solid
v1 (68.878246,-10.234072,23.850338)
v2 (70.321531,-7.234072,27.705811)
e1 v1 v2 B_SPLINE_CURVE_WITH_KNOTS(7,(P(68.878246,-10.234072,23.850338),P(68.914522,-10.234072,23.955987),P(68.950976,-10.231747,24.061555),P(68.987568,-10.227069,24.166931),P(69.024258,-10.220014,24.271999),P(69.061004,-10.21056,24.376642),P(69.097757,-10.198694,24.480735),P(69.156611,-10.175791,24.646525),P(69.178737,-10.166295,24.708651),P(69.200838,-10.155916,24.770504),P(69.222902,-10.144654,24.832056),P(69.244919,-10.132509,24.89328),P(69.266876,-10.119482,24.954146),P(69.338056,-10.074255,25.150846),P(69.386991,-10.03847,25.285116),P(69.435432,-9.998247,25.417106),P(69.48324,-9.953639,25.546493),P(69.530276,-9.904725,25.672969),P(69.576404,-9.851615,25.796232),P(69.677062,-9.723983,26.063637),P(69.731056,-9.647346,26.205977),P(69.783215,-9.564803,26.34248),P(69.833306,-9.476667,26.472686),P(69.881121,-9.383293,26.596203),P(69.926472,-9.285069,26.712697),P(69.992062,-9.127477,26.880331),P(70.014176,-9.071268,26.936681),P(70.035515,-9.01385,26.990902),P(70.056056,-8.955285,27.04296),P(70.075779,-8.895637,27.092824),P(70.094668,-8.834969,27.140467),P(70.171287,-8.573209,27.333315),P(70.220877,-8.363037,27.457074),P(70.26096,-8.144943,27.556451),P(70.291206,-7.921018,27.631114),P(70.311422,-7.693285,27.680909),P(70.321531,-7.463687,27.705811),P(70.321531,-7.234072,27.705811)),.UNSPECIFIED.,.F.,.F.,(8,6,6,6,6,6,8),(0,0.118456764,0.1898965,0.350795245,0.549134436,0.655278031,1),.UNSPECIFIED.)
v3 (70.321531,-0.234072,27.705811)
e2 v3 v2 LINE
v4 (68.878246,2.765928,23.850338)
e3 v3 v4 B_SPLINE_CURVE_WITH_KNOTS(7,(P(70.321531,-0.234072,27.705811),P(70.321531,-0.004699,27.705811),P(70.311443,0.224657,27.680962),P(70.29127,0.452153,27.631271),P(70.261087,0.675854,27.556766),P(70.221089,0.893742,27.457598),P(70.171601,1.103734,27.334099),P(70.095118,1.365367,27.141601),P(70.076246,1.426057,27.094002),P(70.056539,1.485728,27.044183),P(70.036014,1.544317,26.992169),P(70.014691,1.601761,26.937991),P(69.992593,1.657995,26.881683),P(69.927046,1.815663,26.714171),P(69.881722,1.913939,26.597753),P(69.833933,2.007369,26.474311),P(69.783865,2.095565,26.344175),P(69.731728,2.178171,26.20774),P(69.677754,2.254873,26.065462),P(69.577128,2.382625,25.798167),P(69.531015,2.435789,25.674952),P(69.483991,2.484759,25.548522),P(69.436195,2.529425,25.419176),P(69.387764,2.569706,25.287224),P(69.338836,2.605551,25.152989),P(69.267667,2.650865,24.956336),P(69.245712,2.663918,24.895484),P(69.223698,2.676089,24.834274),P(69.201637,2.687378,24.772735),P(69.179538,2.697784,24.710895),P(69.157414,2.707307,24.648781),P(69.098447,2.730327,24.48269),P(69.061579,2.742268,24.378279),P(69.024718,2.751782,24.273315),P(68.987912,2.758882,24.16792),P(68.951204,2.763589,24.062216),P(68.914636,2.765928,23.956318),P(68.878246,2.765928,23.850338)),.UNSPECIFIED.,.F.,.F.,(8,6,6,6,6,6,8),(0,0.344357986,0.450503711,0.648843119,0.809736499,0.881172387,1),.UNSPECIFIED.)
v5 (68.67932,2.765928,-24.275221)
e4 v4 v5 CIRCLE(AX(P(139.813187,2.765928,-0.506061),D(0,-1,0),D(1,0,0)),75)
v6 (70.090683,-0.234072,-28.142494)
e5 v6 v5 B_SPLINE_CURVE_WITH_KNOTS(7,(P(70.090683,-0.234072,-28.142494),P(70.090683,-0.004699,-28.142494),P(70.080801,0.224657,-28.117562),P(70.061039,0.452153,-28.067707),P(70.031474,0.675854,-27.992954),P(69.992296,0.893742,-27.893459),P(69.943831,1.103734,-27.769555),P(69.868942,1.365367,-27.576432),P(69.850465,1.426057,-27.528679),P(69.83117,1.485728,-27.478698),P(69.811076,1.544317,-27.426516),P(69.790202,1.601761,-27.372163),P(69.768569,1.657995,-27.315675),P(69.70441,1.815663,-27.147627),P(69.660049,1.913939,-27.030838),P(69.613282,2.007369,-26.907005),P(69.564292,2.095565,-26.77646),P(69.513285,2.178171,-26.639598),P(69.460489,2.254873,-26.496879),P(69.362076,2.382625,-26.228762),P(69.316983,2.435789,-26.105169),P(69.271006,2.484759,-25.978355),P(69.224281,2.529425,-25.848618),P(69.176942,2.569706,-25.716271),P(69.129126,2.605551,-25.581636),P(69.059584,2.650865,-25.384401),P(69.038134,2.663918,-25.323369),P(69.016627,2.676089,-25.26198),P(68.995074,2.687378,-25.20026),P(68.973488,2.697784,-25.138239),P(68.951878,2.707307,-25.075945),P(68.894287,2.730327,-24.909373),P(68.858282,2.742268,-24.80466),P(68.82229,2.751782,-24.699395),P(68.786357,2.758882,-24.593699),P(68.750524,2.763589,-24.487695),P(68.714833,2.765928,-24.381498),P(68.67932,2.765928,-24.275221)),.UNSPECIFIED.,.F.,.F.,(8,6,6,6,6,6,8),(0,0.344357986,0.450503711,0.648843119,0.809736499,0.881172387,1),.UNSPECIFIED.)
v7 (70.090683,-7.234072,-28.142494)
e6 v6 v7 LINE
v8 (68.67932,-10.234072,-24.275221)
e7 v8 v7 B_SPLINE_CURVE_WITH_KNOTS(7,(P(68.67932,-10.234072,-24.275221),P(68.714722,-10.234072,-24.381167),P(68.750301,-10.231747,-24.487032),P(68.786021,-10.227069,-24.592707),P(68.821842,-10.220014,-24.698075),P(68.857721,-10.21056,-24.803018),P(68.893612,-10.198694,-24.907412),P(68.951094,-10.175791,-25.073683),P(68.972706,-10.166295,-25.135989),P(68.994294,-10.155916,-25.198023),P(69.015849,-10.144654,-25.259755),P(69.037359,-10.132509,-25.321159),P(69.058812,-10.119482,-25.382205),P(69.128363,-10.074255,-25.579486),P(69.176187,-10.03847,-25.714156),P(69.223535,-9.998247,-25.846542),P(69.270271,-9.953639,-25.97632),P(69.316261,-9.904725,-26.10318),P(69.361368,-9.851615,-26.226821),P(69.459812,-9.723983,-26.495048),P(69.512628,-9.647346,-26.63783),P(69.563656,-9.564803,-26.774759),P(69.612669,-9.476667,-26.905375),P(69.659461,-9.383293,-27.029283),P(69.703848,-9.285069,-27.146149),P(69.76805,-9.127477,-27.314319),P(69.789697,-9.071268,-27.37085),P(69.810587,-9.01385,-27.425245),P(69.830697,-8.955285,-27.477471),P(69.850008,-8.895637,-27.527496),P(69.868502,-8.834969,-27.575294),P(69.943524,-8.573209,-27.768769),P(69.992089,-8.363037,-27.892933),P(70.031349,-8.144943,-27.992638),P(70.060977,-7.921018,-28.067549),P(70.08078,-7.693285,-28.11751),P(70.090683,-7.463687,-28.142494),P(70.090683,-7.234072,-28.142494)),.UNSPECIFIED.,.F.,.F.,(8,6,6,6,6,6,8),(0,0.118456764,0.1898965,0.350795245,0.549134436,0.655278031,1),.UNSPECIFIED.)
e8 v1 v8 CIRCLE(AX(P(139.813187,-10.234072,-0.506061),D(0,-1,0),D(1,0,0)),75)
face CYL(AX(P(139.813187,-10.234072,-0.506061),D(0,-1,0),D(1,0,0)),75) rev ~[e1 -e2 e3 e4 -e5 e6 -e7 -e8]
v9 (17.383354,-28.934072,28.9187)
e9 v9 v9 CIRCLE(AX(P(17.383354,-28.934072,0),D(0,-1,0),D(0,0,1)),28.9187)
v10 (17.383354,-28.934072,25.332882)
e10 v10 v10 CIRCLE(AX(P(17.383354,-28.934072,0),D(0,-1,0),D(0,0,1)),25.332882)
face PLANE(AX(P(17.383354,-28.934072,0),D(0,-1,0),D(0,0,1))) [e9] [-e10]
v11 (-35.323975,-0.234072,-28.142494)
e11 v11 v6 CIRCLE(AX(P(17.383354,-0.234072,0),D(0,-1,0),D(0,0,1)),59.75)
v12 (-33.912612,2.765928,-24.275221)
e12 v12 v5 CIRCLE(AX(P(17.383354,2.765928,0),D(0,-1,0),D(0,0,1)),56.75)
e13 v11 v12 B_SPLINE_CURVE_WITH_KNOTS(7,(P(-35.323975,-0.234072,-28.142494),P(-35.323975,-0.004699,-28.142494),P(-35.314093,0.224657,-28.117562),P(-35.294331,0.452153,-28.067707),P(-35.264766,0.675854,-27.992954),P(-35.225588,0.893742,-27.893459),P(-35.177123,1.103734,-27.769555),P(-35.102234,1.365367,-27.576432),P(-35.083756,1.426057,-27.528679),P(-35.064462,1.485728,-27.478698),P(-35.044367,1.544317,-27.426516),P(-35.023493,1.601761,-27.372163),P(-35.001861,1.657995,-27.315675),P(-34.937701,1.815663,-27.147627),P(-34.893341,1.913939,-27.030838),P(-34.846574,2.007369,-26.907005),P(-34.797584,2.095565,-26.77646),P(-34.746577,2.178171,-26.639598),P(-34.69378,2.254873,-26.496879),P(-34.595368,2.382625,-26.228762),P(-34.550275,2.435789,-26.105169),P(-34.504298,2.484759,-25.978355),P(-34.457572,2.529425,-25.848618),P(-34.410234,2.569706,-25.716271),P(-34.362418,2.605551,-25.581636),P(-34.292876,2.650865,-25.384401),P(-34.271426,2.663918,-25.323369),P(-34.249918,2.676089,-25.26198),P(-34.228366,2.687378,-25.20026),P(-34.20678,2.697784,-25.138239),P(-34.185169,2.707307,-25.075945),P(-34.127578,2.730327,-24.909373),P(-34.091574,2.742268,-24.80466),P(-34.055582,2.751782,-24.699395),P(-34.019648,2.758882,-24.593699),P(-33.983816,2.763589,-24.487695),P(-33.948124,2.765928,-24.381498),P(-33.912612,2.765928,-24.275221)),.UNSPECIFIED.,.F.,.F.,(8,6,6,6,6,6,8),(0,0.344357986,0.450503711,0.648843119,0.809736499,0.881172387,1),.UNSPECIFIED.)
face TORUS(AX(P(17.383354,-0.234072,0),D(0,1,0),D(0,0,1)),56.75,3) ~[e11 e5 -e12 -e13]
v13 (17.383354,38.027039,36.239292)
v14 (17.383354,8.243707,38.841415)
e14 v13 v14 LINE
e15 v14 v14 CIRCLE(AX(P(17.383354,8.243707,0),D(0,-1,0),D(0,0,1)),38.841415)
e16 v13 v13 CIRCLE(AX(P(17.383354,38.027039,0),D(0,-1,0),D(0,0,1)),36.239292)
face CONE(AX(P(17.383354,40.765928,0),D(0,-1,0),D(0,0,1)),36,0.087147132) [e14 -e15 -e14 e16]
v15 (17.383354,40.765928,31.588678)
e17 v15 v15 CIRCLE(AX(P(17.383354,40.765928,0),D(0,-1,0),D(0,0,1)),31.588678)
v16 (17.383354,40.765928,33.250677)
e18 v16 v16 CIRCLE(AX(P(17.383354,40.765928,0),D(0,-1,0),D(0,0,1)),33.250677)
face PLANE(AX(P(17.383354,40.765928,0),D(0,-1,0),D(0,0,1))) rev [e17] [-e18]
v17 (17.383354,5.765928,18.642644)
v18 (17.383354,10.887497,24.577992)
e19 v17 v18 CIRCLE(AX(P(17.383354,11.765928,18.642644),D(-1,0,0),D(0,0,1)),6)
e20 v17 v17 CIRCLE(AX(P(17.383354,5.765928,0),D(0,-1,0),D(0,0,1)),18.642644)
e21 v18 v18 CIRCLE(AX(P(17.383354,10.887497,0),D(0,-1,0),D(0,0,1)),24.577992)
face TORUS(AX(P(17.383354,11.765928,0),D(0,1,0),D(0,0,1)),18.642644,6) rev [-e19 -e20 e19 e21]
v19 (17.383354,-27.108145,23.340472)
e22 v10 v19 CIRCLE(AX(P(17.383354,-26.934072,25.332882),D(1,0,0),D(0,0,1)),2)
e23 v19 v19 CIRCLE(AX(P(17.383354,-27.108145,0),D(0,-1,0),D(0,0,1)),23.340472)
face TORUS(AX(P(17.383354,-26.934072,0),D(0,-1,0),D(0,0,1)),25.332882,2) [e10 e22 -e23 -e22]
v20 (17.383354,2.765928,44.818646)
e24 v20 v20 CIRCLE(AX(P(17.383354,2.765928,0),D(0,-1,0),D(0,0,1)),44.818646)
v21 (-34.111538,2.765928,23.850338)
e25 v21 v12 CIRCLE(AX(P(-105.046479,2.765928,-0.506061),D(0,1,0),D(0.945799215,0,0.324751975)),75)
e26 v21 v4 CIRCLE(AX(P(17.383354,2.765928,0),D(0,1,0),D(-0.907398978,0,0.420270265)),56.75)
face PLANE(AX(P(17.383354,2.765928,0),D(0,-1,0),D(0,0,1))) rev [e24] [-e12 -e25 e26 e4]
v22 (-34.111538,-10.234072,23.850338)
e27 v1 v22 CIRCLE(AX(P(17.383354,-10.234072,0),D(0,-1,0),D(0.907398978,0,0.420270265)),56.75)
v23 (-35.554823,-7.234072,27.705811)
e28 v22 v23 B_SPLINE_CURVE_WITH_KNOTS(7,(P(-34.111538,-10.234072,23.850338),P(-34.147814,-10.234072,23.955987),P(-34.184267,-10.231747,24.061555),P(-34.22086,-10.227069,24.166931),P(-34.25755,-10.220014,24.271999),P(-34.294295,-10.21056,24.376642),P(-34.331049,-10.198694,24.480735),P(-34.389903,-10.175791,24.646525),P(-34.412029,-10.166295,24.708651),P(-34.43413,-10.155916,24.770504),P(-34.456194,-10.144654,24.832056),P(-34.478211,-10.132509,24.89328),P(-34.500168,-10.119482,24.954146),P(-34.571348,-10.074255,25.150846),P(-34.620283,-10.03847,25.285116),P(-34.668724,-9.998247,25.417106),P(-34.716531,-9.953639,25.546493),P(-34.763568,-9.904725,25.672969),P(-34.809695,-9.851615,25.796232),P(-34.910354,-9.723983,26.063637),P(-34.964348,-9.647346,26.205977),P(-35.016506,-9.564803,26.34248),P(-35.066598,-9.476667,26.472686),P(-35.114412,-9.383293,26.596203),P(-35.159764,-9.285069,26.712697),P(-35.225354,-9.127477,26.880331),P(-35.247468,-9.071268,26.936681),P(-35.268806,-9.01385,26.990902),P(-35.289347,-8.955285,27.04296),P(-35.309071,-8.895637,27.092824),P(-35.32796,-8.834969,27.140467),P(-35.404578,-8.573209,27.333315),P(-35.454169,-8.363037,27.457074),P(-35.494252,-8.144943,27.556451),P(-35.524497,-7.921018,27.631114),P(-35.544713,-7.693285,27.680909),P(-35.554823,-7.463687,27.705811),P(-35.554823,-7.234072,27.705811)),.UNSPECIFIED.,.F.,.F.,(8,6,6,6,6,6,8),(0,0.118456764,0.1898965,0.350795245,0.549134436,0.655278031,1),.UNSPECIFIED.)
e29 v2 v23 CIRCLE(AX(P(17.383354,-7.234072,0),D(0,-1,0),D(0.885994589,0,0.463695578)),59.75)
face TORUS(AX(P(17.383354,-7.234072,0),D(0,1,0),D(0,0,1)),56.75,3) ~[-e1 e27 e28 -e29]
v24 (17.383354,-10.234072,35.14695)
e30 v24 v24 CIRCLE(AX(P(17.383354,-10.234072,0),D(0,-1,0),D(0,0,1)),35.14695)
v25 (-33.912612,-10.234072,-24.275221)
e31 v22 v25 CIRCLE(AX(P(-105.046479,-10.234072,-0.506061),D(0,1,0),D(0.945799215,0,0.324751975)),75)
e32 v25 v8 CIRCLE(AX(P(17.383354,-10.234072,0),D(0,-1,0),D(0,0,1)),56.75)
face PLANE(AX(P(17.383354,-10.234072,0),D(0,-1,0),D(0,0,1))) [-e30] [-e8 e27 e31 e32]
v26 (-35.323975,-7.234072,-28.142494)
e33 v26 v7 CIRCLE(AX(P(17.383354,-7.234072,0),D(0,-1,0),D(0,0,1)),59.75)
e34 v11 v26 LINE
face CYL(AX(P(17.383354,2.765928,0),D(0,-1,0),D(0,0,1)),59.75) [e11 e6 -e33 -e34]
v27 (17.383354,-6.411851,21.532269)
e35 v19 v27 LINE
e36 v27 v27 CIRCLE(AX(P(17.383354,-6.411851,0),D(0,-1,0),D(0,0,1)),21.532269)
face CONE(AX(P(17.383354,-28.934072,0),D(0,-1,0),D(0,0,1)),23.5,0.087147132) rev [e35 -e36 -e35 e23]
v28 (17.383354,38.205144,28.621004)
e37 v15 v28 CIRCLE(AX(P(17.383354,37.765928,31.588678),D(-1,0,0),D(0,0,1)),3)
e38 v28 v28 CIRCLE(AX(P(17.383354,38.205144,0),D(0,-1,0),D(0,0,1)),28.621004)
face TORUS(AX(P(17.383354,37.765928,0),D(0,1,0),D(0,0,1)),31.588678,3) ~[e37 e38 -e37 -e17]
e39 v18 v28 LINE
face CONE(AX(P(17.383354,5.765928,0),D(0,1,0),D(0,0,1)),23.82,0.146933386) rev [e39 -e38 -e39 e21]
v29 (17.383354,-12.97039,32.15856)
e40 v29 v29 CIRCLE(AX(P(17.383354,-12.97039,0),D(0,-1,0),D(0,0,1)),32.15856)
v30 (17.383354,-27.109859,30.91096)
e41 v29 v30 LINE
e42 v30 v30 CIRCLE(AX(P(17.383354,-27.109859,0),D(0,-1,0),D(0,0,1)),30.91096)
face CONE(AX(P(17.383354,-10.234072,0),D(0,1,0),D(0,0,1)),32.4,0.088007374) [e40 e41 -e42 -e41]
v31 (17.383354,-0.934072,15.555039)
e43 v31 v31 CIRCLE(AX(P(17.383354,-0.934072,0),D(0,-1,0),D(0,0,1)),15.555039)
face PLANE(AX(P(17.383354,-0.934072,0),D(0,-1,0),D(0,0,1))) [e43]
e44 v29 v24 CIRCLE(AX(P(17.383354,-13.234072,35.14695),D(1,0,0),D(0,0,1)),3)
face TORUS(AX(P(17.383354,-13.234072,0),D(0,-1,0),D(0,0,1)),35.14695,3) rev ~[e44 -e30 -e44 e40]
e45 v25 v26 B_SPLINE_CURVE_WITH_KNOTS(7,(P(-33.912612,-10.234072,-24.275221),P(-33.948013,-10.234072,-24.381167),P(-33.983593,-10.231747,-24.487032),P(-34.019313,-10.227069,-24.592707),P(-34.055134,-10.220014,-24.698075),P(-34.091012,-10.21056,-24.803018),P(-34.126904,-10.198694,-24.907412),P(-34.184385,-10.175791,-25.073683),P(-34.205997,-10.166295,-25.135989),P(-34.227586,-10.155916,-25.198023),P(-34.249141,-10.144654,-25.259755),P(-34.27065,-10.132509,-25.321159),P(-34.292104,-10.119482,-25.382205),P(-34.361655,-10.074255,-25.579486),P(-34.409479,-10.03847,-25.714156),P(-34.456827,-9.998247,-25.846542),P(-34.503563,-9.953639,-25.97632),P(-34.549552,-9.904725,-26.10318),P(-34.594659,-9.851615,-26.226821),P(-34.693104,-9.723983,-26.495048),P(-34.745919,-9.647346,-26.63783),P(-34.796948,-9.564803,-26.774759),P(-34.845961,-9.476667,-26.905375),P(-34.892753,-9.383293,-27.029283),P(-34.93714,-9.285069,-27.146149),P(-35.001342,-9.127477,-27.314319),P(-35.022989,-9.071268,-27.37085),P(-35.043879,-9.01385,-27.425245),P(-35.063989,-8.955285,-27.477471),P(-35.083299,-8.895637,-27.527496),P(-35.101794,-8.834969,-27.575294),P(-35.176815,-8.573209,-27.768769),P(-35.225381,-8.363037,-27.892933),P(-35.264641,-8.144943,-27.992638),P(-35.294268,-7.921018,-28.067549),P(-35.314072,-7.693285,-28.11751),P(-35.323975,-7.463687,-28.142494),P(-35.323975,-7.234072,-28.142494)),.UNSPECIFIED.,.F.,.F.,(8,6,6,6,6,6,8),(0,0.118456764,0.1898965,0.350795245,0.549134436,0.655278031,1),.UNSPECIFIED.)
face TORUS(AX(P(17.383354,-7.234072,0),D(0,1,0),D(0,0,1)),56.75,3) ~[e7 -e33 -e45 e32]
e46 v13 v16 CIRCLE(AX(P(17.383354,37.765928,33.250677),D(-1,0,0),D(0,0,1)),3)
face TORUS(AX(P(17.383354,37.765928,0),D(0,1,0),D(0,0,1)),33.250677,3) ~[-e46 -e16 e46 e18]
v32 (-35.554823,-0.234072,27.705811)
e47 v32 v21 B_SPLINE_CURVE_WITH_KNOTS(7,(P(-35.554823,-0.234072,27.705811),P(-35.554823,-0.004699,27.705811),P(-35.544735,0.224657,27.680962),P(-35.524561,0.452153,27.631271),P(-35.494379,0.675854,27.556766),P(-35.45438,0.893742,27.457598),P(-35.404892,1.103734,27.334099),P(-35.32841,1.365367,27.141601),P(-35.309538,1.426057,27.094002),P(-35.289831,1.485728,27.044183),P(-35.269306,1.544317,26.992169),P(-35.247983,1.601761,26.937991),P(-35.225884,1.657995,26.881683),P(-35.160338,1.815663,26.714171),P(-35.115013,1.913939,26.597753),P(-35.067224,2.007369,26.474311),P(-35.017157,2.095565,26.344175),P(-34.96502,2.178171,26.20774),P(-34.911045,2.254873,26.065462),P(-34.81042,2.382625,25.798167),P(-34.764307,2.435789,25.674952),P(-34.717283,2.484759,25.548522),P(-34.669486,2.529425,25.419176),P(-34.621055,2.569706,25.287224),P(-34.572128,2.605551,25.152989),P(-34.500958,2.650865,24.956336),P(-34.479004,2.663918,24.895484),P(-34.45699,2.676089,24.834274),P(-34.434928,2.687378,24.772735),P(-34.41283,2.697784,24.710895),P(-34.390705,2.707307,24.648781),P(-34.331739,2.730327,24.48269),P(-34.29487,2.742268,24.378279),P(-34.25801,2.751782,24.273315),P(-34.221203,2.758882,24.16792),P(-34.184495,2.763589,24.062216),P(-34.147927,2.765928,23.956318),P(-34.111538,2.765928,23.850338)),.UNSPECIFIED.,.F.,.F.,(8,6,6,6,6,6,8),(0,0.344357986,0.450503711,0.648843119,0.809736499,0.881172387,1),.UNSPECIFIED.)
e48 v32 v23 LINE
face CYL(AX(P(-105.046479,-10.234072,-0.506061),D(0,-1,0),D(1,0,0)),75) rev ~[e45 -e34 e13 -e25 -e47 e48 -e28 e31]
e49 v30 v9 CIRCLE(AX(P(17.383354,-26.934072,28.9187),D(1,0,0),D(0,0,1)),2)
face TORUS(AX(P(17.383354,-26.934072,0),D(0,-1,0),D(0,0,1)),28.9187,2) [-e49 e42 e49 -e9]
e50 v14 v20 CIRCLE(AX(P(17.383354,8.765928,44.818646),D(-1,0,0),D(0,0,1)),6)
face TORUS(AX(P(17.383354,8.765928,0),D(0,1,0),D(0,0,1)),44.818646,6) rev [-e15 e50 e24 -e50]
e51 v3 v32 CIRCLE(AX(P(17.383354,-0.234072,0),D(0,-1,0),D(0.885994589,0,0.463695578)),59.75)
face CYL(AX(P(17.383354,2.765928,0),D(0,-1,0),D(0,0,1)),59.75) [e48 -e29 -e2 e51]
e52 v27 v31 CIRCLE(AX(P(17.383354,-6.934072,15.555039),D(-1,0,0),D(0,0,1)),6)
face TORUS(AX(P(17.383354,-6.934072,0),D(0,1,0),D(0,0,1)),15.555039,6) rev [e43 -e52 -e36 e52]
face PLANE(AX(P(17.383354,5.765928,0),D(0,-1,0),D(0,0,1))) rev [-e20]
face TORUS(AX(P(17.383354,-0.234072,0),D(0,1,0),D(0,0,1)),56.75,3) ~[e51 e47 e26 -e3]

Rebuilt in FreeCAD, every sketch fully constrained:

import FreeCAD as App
import Part
import Sketcher

V = App.Vector


def edges_at(feature, points):
    """Names of the edges that pass closest to the given points."""
    edges = feature.Shape.Edges
    near = lambda p: min(range(len(edges)), key=lambda i: edges[i].distToShape(Part.Vertex(*p))[0])
    return sorted({f"Edge{near(p) + 1}" for p in points})

doc = App.newDocument("Part")
body = doc.addObject("PartDesign::Body", "Body")

# Sketch on XY plane
sketch1 = body.newObject("Sketcher::SketchObject", "Sketch")
sketch1.AttachmentSupport = (doc.getObject("XY_Plane"), [""])
sketch1.MapMode = "FlatFace"
sketch1.addGeometry([
    Part.LineSegment(V(53, 41, 0), V(46, 41, 0)),  # 0
    Part.LineSegment(V(46, 41, 0), V(41, 6, 0)),  # 1
    Part.LineSegment(V(41, 6, 0), V(17, 6, 0)),  # 2
    Part.LineSegment(V(17, 6, 0), V(17, -1, 0)),  # 3
    Part.LineSegment(V(17, -1, 0), V(38, -1, 0)),  # 4
    Part.LineSegment(V(38, -1, 0), V(41, -29, 0)),  # 5
    Part.LineSegment(V(41, -29, 0), V(48, -29, 0)),  # 6
    Part.LineSegment(V(48, -29, 0), V(50, -10, 0)),  # 7
    Part.LineSegment(V(50, -10, 0), V(77, -10, 0)),  # 8
    Part.LineSegment(V(77, -10, 0), V(77, 3, 0)),  # 9
    Part.LineSegment(V(77, 3, 0), V(57, 3, 0)),  # 10
    Part.LineSegment(V(57, 3, 0), V(53, 41, 0)),  # 11
], False)
sketch1.addGeometry(Part.LineSegment(V(17, 41, 0), V(17, -29, 0)), True)  # axis
sketch1.addConstraint([
    Sketcher.Constraint("Coincident", 0, 2, 1, 1),
    Sketcher.Constraint("Coincident", 1, 2, 2, 1),
    Sketcher.Constraint("Coincident", 2, 2, 3, 1),
    Sketcher.Constraint("Coincident", 3, 2, 4, 1),
    Sketcher.Constraint("Coincident", 4, 2, 5, 1),
    Sketcher.Constraint("Coincident", 5, 2, 6, 1),
    Sketcher.Constraint("Coincident", 6, 2, 7, 1),
    Sketcher.Constraint("Coincident", 7, 2, 8, 1),
    Sketcher.Constraint("Coincident", 8, 2, 9, 1),
    Sketcher.Constraint("Coincident", 9, 2, 10, 1),
    Sketcher.Constraint("Coincident", 10, 2, 11, 1),
    Sketcher.Constraint("Coincident", 11, 2, 0, 1),
    Sketcher.Constraint("Horizontal", 0),
    Sketcher.Constraint("Horizontal", 2),
    Sketcher.Constraint("Vertical", 3),
    Sketcher.Constraint("Horizontal", 4),
    Sketcher.Constraint("Horizontal", 6),
    Sketcher.Constraint("Horizontal", 8),
    Sketcher.Constraint("Vertical", 9),
    Sketcher.Constraint("Horizontal", 10),
    Sketcher.Constraint("Vertical", 12),
    Sketcher.Constraint("Parallel", 5, 11),
    Sketcher.Constraint("Horizontal", 11, 2, 12, 1),
    Sketcher.Constraint("Horizontal", 6, 2, 12, 2),
    Sketcher.Constraint("Vertical", 3, 2, 12, 1),
    Sketcher.Constraint("DistanceX", 0, 2, 0, 1, 7.0),
    Sketcher.Constraint("DistanceY", 9, 1, 9, 2, 13.0),
    Sketcher.Constraint("DistanceY", 3, 2, 3, 1, 6.7),
    Sketcher.Constraint("DistanceY", 12, 2, 12, 1, 69.7),
    Sketcher.Constraint("DistanceY", 1, 2, 0, 2, 35.0),
    Sketcher.Constraint("DistanceX", 2, 2, 0, 2, 29.0),
    Sketcher.Constraint("DistanceY", 7, 2, 1, 2, 16.0),
    Sketcher.Constraint("DistanceX", 6, 2, 8, 2, 29.0),
    Sketcher.Constraint("DistanceX", 2, 2, 2, 1, 23.82),
    Sketcher.Constraint("DistanceX", 6, 1, 6, 2, 7.25),
    Sketcher.Constraint("DistanceX", 8, 1, 8, 2, 27.35),
    Sketcher.Constraint("DistanceX", 10, 2, 10, 1, 20.43),
    Sketcher.Constraint("DistanceX", 3, 2, 5, 2, 23.5),
    Sketcher.Constraint("DistanceY", -1, 1, 0, 2, 40.765928),
    Sketcher.Constraint("DistanceX", -1, 1, 4, 2, 38.437038),
])
revolution = body.newObject("PartDesign::Revolution", "Revolution")
revolution.Profile = sketch1
revolution.ReferenceAxis = (sketch1, ["Axis0"])
revolution.Angle = 360
doc.recompute()

fillet = body.newObject("PartDesign::Fillet", "Fillet")
fillet.Base = (revolution, edges_at(revolution, [(17.383, 5.766, -23.82)]))
fillet.Radius = 6
doc.recompute()

fillet2 = body.newObject("PartDesign::Fillet", "Fillet001")
fillet2.Base = (fillet, edges_at(fillet, [(17.383, -0.934, -21.054)]))
fillet2.Radius = 6
doc.recompute()

fillet3 = body.newObject("PartDesign::Fillet", "Fillet002")
fillet3.Base = (fillet2, edges_at(fillet2, [(17.383, -10.234, -32.4)]))
fillet3.Radius = 3
doc.recompute()

fillet4 = body.newObject("PartDesign::Fillet", "Fillet003")
fillet4.Base = (fillet3, edges_at(fillet3, [(17.383, -10.234, -59.75)]))
fillet4.Radius = 3
doc.recompute()

fillet5 = body.newObject("PartDesign::Fillet", "Fillet004")
fillet5.Base = (fillet4, edges_at(fillet4, [(17.383, 2.766, -59.75)]))
fillet5.Radius = 3
doc.recompute()

fillet6 = body.newObject("PartDesign::Fillet", "Fillet005")
fillet6.Base = (fillet5, edges_at(fillet5, [(17.383, 40.766, -36)]))
fillet6.Radius = 3
doc.recompute()

fillet7 = body.newObject("PartDesign::Fillet", "Fillet006")
fillet7.Base = (fillet6, edges_at(fillet6, [(17.383, 40.766, -29)]))
fillet7.Radius = 3
doc.recompute()

fillet8 = body.newObject("PartDesign::Fillet", "Fillet007")
fillet8.Base = (fillet7, edges_at(fillet7, [(17.383, 2.766, -39.32)]))
fillet8.Radius = 6
doc.recompute()

fillet9 = body.newObject("PartDesign::Fillet", "Fillet008")
fillet9.Base = (fillet8, edges_at(fillet8, [(17.383, -28.934, -23.5), (17.383, -28.934, -30.75)]))
fillet9.Radius = 2

# Sketch on XZ plane
sketch2 = body.newObject("Sketcher::SketchObject", "Sketch001")
sketch2.AttachmentSupport = (doc.getObject("XZ_Plane"), [""])
sketch2.MapMode = "FlatFace"
sketch2.AttachmentOffset = App.Placement(V(0, 0, 10.234072), App.Rotation())
sketch2.addGeometry([
    Part.Circle(V(140, -1, 0), V(0, 0, 1), 75),
    Part.Circle(V(-105, -1, 0), V(0, 0, 1), 75),
], False)
sketch2.addConstraint([
    Sketcher.Constraint("Equal", 0, 1),
    Sketcher.Constraint("Horizontal", 0, 3, 1, 3),
    Sketcher.Constraint("Diameter", 0, 150.0),
    Sketcher.Constraint("DistanceY", 0, 3, -1, 1, 0.506061),
    Sketcher.Constraint("DistanceX", 1, 3, -1, 1, 105.046479),
    Sketcher.Constraint("DistanceX", -1, 1, 0, 3, 139.813187),
])
pocket1 = body.newObject("PartDesign::Pocket", "Pocket")
pocket1.Profile = sketch2
pocket1.Type = "ThroughAll"

doc.recompute()
